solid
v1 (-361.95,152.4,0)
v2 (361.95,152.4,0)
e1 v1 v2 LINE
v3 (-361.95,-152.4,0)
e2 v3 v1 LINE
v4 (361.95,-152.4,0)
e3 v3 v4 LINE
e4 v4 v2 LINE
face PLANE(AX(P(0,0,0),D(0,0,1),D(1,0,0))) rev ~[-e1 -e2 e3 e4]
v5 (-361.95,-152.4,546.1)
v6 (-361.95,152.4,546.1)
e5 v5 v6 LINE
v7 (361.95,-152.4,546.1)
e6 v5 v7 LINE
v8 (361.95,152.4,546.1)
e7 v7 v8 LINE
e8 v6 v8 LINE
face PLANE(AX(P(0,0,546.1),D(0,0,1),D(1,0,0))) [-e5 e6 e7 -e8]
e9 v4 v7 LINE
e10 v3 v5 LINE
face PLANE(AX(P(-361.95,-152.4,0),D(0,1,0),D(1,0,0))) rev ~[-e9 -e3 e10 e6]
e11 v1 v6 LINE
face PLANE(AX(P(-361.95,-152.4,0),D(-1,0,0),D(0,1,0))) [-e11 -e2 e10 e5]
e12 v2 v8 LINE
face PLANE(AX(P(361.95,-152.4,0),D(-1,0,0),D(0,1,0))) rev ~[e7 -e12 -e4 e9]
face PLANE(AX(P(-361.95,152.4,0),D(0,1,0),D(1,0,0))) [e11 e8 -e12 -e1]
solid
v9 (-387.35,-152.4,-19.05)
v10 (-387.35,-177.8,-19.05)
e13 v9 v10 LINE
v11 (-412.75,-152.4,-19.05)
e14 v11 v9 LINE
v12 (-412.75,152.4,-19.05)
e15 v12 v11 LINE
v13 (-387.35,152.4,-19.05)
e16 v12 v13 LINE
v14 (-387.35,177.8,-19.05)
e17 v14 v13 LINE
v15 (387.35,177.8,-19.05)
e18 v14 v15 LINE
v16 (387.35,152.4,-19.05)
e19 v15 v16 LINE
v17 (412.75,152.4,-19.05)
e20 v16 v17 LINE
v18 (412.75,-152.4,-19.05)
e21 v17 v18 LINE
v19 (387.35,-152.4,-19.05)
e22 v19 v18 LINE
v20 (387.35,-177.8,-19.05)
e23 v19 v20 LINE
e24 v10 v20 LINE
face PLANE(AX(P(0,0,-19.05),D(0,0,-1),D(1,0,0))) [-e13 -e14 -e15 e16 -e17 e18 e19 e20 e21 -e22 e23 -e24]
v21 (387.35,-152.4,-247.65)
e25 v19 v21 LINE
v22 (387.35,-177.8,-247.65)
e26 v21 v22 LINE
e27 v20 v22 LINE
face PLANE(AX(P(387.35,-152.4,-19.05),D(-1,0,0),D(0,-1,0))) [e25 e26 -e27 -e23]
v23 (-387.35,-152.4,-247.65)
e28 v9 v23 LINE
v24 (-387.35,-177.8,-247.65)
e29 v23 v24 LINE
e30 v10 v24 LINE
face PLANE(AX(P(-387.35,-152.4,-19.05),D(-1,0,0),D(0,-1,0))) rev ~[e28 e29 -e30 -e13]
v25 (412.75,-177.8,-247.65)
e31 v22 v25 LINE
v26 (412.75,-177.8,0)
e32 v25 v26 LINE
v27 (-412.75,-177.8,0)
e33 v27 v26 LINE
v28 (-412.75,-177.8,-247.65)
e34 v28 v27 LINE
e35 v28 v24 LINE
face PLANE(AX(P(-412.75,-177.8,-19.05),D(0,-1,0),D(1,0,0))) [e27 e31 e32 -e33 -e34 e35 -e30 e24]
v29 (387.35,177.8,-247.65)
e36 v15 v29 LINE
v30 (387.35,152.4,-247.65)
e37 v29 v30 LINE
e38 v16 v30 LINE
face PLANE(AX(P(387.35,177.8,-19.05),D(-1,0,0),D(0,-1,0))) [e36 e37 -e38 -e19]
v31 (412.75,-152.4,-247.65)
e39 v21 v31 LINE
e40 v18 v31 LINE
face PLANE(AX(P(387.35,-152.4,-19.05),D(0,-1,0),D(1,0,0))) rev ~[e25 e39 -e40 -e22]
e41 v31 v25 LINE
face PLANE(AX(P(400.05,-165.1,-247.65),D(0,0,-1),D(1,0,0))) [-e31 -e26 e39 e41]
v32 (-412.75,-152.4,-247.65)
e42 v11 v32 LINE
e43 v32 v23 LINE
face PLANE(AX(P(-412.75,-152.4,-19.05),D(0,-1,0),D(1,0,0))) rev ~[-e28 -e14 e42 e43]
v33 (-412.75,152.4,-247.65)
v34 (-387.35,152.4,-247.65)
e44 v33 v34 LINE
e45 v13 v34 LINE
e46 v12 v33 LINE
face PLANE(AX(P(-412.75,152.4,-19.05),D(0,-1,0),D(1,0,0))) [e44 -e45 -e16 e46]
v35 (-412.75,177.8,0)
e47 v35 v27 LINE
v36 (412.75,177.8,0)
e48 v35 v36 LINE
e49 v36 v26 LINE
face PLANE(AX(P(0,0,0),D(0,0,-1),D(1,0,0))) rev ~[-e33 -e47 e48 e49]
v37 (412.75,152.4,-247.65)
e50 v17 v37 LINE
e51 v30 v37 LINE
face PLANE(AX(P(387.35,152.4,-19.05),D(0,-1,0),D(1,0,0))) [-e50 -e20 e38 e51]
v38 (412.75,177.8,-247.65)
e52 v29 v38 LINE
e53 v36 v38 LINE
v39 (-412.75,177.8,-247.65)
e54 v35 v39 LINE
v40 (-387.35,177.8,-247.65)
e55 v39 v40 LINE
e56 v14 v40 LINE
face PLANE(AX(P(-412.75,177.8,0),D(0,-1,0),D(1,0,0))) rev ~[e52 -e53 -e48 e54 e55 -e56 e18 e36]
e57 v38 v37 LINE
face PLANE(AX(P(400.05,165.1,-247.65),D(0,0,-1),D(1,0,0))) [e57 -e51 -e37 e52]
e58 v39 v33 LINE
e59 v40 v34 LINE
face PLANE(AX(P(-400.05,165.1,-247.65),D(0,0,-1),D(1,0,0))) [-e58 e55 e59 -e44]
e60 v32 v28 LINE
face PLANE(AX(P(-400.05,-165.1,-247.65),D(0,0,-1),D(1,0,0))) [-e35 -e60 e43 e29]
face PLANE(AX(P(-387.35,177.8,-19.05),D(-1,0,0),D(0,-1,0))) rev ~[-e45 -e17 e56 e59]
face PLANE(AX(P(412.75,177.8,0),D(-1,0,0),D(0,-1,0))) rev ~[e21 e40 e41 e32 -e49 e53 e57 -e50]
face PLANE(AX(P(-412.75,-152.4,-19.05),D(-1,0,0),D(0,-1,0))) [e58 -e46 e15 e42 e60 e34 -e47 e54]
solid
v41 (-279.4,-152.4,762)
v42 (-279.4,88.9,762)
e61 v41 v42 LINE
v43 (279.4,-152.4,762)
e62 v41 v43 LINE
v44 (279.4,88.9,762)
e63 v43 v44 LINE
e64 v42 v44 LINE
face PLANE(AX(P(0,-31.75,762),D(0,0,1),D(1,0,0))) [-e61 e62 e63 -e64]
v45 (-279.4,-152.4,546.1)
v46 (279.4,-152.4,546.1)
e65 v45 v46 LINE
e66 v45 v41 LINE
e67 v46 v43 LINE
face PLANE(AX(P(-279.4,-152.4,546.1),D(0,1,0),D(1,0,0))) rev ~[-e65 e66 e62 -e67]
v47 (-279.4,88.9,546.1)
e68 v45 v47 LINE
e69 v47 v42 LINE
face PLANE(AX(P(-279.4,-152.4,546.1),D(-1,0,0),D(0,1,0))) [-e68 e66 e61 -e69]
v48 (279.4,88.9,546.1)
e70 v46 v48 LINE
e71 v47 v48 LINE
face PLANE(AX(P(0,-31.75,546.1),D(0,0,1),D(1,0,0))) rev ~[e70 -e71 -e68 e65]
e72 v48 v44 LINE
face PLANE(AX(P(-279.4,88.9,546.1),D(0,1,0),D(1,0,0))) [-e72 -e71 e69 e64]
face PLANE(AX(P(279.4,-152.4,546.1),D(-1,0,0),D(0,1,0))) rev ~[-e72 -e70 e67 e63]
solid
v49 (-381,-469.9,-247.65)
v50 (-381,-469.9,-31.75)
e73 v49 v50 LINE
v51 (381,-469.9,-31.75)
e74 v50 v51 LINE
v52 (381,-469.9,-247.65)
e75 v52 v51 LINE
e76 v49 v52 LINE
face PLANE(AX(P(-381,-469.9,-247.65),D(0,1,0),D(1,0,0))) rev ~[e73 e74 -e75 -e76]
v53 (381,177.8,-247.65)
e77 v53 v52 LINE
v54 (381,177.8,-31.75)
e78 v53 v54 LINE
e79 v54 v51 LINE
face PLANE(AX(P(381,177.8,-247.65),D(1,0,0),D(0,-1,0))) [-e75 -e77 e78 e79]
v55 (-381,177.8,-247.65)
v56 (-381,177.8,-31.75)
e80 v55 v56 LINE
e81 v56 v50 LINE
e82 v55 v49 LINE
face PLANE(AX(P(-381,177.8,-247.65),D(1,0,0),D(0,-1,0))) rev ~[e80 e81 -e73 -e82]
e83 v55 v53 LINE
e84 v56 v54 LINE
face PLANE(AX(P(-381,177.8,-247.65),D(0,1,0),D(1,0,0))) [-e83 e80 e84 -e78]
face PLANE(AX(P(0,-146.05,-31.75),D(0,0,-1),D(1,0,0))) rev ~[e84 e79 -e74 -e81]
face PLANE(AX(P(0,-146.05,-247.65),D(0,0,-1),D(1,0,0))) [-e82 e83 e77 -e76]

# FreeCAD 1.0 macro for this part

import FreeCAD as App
import Part
import Sketcher
Q = App.Units.Quantity

doc = App.newDocument("Part")
body = doc.addObject("PartDesign::Body", "Body")

sketch1 = body.newObject("Sketcher::SketchObject", "Sketch")
sketch1.AttachmentSupport = (doc.getObject("XY_Plane"), [""])
sketch1.MapMode = "FlatFace"
sketch1.addGeometry([
    Part.LineSegment(App.Vector(-362, 152, 0), App.Vector(-362, -152, 0)),
    Part.LineSegment(App.Vector(-362, -152, 0), App.Vector(362, -152, 0)),
    Part.LineSegment(App.Vector(362, -152, 0), App.Vector(362, 152, 0)),
    Part.LineSegment(App.Vector(362, 152, 0), App.Vector(-362, 152, 0)),
], False)
sketch1.addConstraint([
    Sketcher.Constraint("Coincident", 0, 2, 1, 1),
    Sketcher.Constraint("Coincident", 1, 2, 2, 1),
    Sketcher.Constraint("Coincident", 2, 2, 3, 1),
    Sketcher.Constraint("Coincident", 3, 2, 0, 1),
    Sketcher.Constraint("Vertical", 0),
    Sketcher.Constraint("Horizontal", 1),
    Sketcher.Constraint("Vertical", 2),
    Sketcher.Constraint("Horizontal", 3),
    Sketcher.Constraint("Symmetric", 0, 2, 2, 2, -1, 1),
    Sketcher.Constraint("DistanceY", 0, 2, 0, 1, Q("12 in")),
    Sketcher.Constraint("DistanceX", 1, 1, 1, 2, Q("28.5 in")),
])
pad1 = body.newObject("PartDesign::Pad", "Pad")
pad1.Profile = sketch1
pad1.Length = Q("21.5 in")
body2 = doc.addObject("PartDesign::Body", "Body001")

sketch2 = body2.newObject("Sketcher::SketchObject", "Sketch001")
sketch2.AttachmentSupport = (doc.getObject("XY_Plane001"), [""])
sketch2.MapMode = "FlatFace"
sketch2.AttachmentOffset = App.Placement(App.Vector(0, 0, 21.5 * 25.4), App.Rotation())
sketch2.addGeometry([
    Part.LineSegment(App.Vector(-279, 89, 0), App.Vector(-279, -152, 0)),
    Part.LineSegment(App.Vector(-279, -152, 0), App.Vector(279, -152, 0)),
    Part.LineSegment(App.Vector(279, -152, 0), App.Vector(279, 89, 0)),
    Part.LineSegment(App.Vector(279, 89, 0), App.Vector(-279, 89, 0)),
], False)
sketch2.addConstraint([
    Sketcher.Constraint("Coincident", 0, 2, 1, 1),
    Sketcher.Constraint("Coincident", 1, 2, 2, 1),
    Sketcher.Constraint("Coincident", 2, 2, 3, 1),
    Sketcher.Constraint("Coincident", 3, 2, 0, 1),
    Sketcher.Constraint("Vertical", 0),
    Sketcher.Constraint("Horizontal", 1),
    Sketcher.Constraint("Vertical", 2),
    Sketcher.Constraint("Horizontal", 3),
    Sketcher.Constraint("DistanceX", 1, 1, 1, 2, Q("22 in")),
    Sketcher.Constraint("DistanceY", 0, 2, 0, 1, Q("9.5 in")),
    Sketcher.Constraint("DistanceX", 0, 2, -1, 1, Q("11 in")),
    Sketcher.Constraint("DistanceY", 0, 2, -1, 1, Q("6 in")),
])
pad2 = body2.newObject("PartDesign::Pad", "Pad001")
pad2.Profile = sketch2
pad2.Length = Q("8.5 in")
body3 = doc.addObject("PartDesign::Body", "Body002")

sketch3 = body3.newObject("Sketcher::SketchObject", "Sketch002")
sketch3.AttachmentSupport = (doc.getObject("XY_Plane002"), [""])
sketch3.MapMode = "FlatFace"
sketch3.addGeometry([
    Part.LineSegment(App.Vector(-413, -178, 0), App.Vector(-413, 178, 0)),
    Part.LineSegment(App.Vector(-413, 178, 0), App.Vector(413, 178, 0)),
    Part.LineSegment(App.Vector(413, 178, 0), App.Vector(413, -178, 0)),
    Part.LineSegment(App.Vector(413, -178, 0), App.Vector(-413, -178, 0)),
], False)
sketch3.addConstraint([
    Sketcher.Constraint("Coincident", 0, 2, 1, 1),
    Sketcher.Constraint("Coincident", 1, 2, 2, 1),
    Sketcher.Constraint("Coincident", 2, 2, 3, 1),
    Sketcher.Constraint("Coincident", 3, 2, 0, 1),
    Sketcher.Constraint("Vertical", 0),
    Sketcher.Constraint("Horizontal", 1),
    Sketcher.Constraint("Vertical", 2),
    Sketcher.Constraint("Horizontal", 3),
    Sketcher.Constraint("Symmetric", 0, 2, 2, 2, -1, 1),
    Sketcher.Constraint("DistanceY", 0, 1, 0, 2, Q("14 in")),
    Sketcher.Constraint("DistanceX", 1, 1, 1, 2, Q("32.5 in")),
])
pad3 = body3.newObject("PartDesign::Pad", "Pad002")
pad3.Profile = sketch3
pad3.Length = Q("0.75 in")
pad3.Reversed = True

sketch4 = body3.newObject("Sketcher::SketchObject", "Sketch003")
sketch4.AttachmentSupport = (doc.getObject("XY_Plane002"), [""])
sketch4.MapMode = "FlatFace"
sketch4.AttachmentOffset = App.Placement(App.Vector(0, 0, -0.75 * 25.4), App.Rotation())
sketch4.addGeometry([
    Part.LineSegment(App.Vector(-413, -178, 0), App.Vector(-413, -152, 0)),
    Part.LineSegment(App.Vector(-413, -152, 0), App.Vector(-387, -152, 0)),
    Part.LineSegment(App.Vector(-387, -152, 0), App.Vector(-387, -178, 0)),
    Part.LineSegment(App.Vector(-387, -178, 0), App.Vector(-413, -178, 0)),
    Part.LineSegment(App.Vector(-413, 152, 0), App.Vector(-413, 178, 0)),
    Part.LineSegment(App.Vector(-413, 178, 0), App.Vector(-387, 178, 0)),
    Part.LineSegment(App.Vector(-387, 178, 0), App.Vector(-387, 152, 0)),
    Part.LineSegment(App.Vector(-387, 152, 0), App.Vector(-413, 152, 0)),
    Part.LineSegment(App.Vector(387, 152, 0), App.Vector(387, 178, 0)),
    Part.LineSegment(App.Vector(387, 178, 0), App.Vector(413, 178, 0)),
    Part.LineSegment(App.Vector(413, 178, 0), App.Vector(413, 152, 0)),
    Part.LineSegment(App.Vector(413, 152, 0), App.Vector(387, 152, 0)),
    Part.LineSegment(App.Vector(387, -178, 0), App.Vector(387, -152, 0)),
    Part.LineSegment(App.Vector(387, -152, 0), App.Vector(413, -152, 0)),
    Part.LineSegment(App.Vector(413, -152, 0), App.Vector(413, -178, 0)),
    Part.LineSegment(App.Vector(413, -178, 0), App.Vector(387, -178, 0)),
], False)
sketch4.addConstraint([
    Sketcher.Constraint("Coincident", 0, 2, 1, 1),
    Sketcher.Constraint("Coincident", 1, 2, 2, 1),
    Sketcher.Constraint("Coincident", 2, 2, 3, 1),
    Sketcher.Constraint("Coincident", 3, 2, 0, 1),
    Sketcher.Constraint("Coincident", 4, 2, 5, 1),
    Sketcher.Constraint("Coincident", 5, 2, 6, 1),
    Sketcher.Constraint("Coincident", 6, 2, 7, 1),
    Sketcher.Constraint("Coincident", 7, 2, 4, 1),
    Sketcher.Constraint("Coincident", 8, 2, 9, 1),
    Sketcher.Constraint("Coincident", 9, 2, 10, 1),
    Sketcher.Constraint("Coincident", 10, 2, 11, 1),
    Sketcher.Constraint("Coincident", 11, 2, 8, 1),
    Sketcher.Constraint("Coincident", 12, 2, 13, 1),
    Sketcher.Constraint("Coincident", 13, 2, 14, 1),
    Sketcher.Constraint("Coincident", 14, 2, 15, 1),
    Sketcher.Constraint("Coincident", 15, 2, 12, 1),
    Sketcher.Constraint("Vertical", 0),
    Sketcher.Constraint("Horizontal", 1),
    Sketcher.Constraint("Vertical", 2),
    Sketcher.Constraint("Horizontal", 3),
    Sketcher.Constraint("Vertical", 4),
    Sketcher.Constraint("Horizontal", 5),
    Sketcher.Constraint("Vertical", 6),
    Sketcher.Constraint("Horizontal", 7),
    Sketcher.Constraint("Vertical", 8),
    Sketcher.Constraint("Horizontal", 9),
    Sketcher.Constraint("Vertical", 10),
    Sketcher.Constraint("Horizontal", 11),
    Sketcher.Constraint("Vertical", 12),
    Sketcher.Constraint("Horizontal", 13),
    Sketcher.Constraint("Vertical", 14),
    Sketcher.Constraint("Horizontal", 15),
    Sketcher.Constraint("Symmetric", 2, 2, 8, 2, -1, 1),
    Sketcher.Constraint("Symmetric", 0, 2, 10, 2, -1, 1),
    Sketcher.Constraint("Symmetric", 6, 2, 12, 2, -1, 1),
    Sketcher.Constraint("Symmetric", 4, 2, 14, 2, -1, 1),
    Sketcher.Constraint("Symmetric", 5, 2, 8, 2, -2),
    Sketcher.Constraint("Symmetric", 7, 2, 10, 2, -2),
    Sketcher.Constraint("Equal", 15, 0),
    Sketcher.Constraint("DistanceX", 1, 1, 1, 2, Q("1 in")),
    Sketcher.Constraint("DistanceY", 0, 2, -1, 1, Q("6 in")),
    Sketcher.Constraint("DistanceX", 5, 2, 8, 2, Q("30.5 in")),
])
pad4 = body3.newObject("PartDesign::Pad", "Pad003")
pad4.Profile = sketch4
pad4.Length = Q("9 in")
pad4.Reversed = True
body4 = doc.addObject("PartDesign::Body", "Body003")

sketch5 = body4.newObject("Sketcher::SketchObject", "Sketch004")
sketch5.AttachmentSupport = (doc.getObject("XY_Plane003"), [""])
sketch5.MapMode = "FlatFace"
sketch5.AttachmentOffset = App.Placement(App.Vector(0, 0, -9.75 * 25.4), App.Rotation())
sketch5.addGeometry([
    Part.LineSegment(App.Vector(-381, -470, 0), App.Vector(-381, 178, 0)),
    Part.LineSegment(App.Vector(-381, 178, 0), App.Vector(381, 178, 0)),
    Part.LineSegment(App.Vector(381, 178, 0), App.Vector(381, -470, 0)),
    Part.LineSegment(App.Vector(381, -470, 0), App.Vector(-381, -470, 0)),
], False)
sketch5.addConstraint([
    Sketcher.Constraint("Coincident", 0, 2, 1, 1),
    Sketcher.Constraint("Coincident", 1, 2, 2, 1),
    Sketcher.Constraint("Coincident", 2, 2, 3, 1),
    Sketcher.Constraint("Coincident", 3, 2, 0, 1),
    Sketcher.Constraint("Vertical", 0),
    Sketcher.Constraint("Horizontal", 1),
    Sketcher.Constraint("Vertical", 2),
    Sketcher.Constraint("Horizontal", 3),
    Sketcher.Constraint("DistanceX", 1, 1, 1, 2, Q("30 in")),
    Sketcher.Constraint("DistanceY", 0, 1, 0, 2, Q("25.5 in")),
    Sketcher.Constraint("DistanceX", 0, 2, -1, 1, Q("15 in")),
    Sketcher.Constraint("DistanceY", -1, 1, 0, 2, Q("7 in")),
])
pad5 = body4.newObject("PartDesign::Pad", "Pad004")
pad5.Profile = sketch5
pad5.Length = Q("8.5 in")

doc.recompute()
